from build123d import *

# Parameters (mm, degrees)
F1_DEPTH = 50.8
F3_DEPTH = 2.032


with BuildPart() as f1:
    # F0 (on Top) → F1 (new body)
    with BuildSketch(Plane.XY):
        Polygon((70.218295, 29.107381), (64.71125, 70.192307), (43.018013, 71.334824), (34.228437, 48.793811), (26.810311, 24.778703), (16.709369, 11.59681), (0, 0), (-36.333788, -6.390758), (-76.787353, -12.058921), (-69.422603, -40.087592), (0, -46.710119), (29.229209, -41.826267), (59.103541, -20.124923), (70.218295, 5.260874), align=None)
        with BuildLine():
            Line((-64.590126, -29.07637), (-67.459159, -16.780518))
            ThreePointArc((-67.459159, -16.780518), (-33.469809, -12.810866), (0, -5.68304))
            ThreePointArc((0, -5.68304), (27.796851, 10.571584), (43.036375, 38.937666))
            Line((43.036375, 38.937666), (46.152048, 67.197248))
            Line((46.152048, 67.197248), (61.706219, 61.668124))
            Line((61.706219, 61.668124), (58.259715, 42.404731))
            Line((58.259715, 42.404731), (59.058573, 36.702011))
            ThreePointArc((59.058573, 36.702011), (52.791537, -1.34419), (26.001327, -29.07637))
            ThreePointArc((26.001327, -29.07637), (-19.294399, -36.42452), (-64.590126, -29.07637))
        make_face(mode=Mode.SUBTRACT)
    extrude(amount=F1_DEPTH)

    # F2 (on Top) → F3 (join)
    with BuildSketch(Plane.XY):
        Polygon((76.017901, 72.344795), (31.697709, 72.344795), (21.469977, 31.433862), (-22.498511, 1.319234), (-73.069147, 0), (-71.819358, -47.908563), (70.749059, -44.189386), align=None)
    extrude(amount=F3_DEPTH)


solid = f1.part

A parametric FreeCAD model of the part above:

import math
import FreeCAD as App
import Part
import Sketcher
Q = App.Units.Quantity


def add_polygon(sketch, points):
    """Adds a closed chain of lines whose ends are joined by coincident constraints."""
    first, n = sketch.GeometryCount, len(points)
    for a, b in zip(points, points[1:] + points[:1]):
        sketch.addGeometry(Part.LineSegment(App.Vector(*a, 0), App.Vector(*b, 0)), False)
    for i in range(n):
        sketch.addConstraint(Sketcher.Constraint("Coincident", first + i, 2, first + (i + 1) % n, 1))

doc = App.newDocument("Part")
body = doc.addObject("PartDesign::Body", "Body")

# Sketch on XY plane
sketch1 = body.newObject("Sketcher::SketchObject", "Sketch")
sketch1.AttachmentSupport = (doc.getObject("XY_Plane"), [""])
sketch1.MapMode = "FlatFace"
add_polygon(sketch1, [(70, 29), (65, 70), (43, 71), (34, 49), (27, 25), (17, 12), (0, 0), (-36, -6), (-77, -12), (-69, -40), (0, -47), (29, -42), (59, -20), (70, 5)])  # lines 0-13
sketch1.addGeometry(Part.ArcOfCircle(Part.Circle(App.Vector(-19, 107, 0), App.Vector(0, 0, 1), 143), math.radians(-108), math.radians(-72)), False)  # 14
sketch1.addGeometry(Part.LineSegment(App.Vector(-65, -29, 0), App.Vector(-67, -17, 0)), False)  # 15
sketch1.addGeometry(Part.ArcOfCircle(Part.Circle(App.Vector(-93, 348, 0), App.Vector(0, 0, 1), 366), math.radians(-86.02), math.radians(-75.3)), False)  # 16
sketch1.addGeometry(Part.ArcOfCircle(Part.Circle(App.Vector(-15, 52, 0), App.Vector(0, 0, 1), 59), math.radians(-75), math.radians(-13)), False)  # 17
sketch1.addGeometry(Part.LineSegment(App.Vector(43, 39, 0), App.Vector(46, 67, 0)), False)  # 18
sketch1.addGeometry(Part.LineSegment(App.Vector(46, 67, 0), App.Vector(62, 62, 0)), False)  # 19
sketch1.addGeometry(Part.LineSegment(App.Vector(62, 62, 0), App.Vector(58, 42, 0)), False)  # 20
sketch1.addGeometry(Part.LineSegment(App.Vector(58, 42, 0), App.Vector(59, 37, 0)), False)  # 21
sketch1.addGeometry(Part.ArcOfCircle(Part.Circle(App.Vector(-5, 28, 0), App.Vector(0, 0, 1), 65), math.radians(-61), math.radians(8)), False)  # 22
sketch1.addConstraint(Sketcher.Constraint("Coincident", 14, 1, 15, 1))
sketch1.addConstraint(Sketcher.Constraint("Coincident", 15, 2, 16, 1))
sketch1.addConstraint(Sketcher.Constraint("Coincident", 16, 2, 17, 1))
sketch1.addConstraint(Sketcher.Constraint("Coincident", 17, 2, 18, 1))
sketch1.addConstraint(Sketcher.Constraint("Coincident", 18, 2, 19, 1))
sketch1.addConstraint(Sketcher.Constraint("Coincident", 19, 2, 20, 1))
sketch1.addConstraint(Sketcher.Constraint("Coincident", 20, 2, 21, 1))
sketch1.addConstraint(Sketcher.Constraint("Tangent", 21, 2, 22, 2))
sketch1.addConstraint(Sketcher.Constraint("Coincident", 22, 1, 14, 2))
sketch1.addConstraint(Sketcher.Constraint("Vertical", 13))
sketch1.addConstraint(Sketcher.Constraint("Coincident", 5, 2, -1, 1))
sketch1.addConstraint(Sketcher.Constraint("PointOnObject", 9, 2, -2))
sketch1.addConstraint(Sketcher.Constraint("PointOnObject", 16, 2, -2))
sketch1.addConstraint(Sketcher.Constraint("Horizontal", 14, 1, 22, 1))
sketch1.addConstraint(Sketcher.Constraint("Radius", 17, Q("59.43248 mm")))
sketch1.addConstraint(Sketcher.Constraint("Radius", 22, Q("64.729961 mm")))
sketch1.addConstraint(Sketcher.Constraint("DistanceX", -1, 1, 12, 2, Q("2.7644998 in")))
sketch1.addConstraint(Sketcher.Constraint("Radius", 14, Q("143.280836 mm")))
sketch1.addConstraint(Sketcher.Constraint("Radius", 16, Q("365.876935 mm")))
sketch1.addConstraint(Sketcher.Constraint("DistanceY", 17, 2, 19, 2, Q("0.8948999 in")))
sketch1.addConstraint(Sketcher.Constraint("Distance", 21, Q("5.758402 mm")))
sketch1.addConstraint(Sketcher.Constraint("DistanceX", 14, 3, -1, 1, Q("19.2944 mm")))
sketch1.addConstraint(Sketcher.Constraint("DistanceY", 22, 3, 16, 3, Q("320.491499 mm")))
sketch1.addConstraint(Sketcher.Constraint("DistanceY", 4, 2, 2, 2, Q("37.197001 mm")))
sketch1.addConstraint(Sketcher.Constraint("DistanceX", 6, 2, 3, 2, Q("63.144099 mm")))
sketch1.addConstraint(Sketcher.Constraint("DistanceY", 9, 2, 22, 3, Q("74.4322 mm")))
sketch1.addConstraint(Sketcher.Constraint("DistanceX", 3, 2, 10, 2, Q("2.418898 mm")))
sketch1.addConstraint(Sketcher.Constraint("DistanceY", 19, 2, 1, 2, Q("9.6667 mm")))
sketch1.addConstraint(Sketcher.Constraint("DistanceY", 21, 2, 2, 2, Q("12.0918 mm")))
sketch1.addConstraint(Sketcher.Constraint("Distance", 2, Q("24.194088 mm")))
sketch1.addConstraint(Sketcher.Constraint("Distance", 19, Q("16.507678 mm")))
sketch1.addConstraint(Sketcher.Constraint("Distance", 20, Q("19.569279 mm")))
sketch1.addConstraint(Sketcher.Constraint("DistanceY", 13, 1, 13, 2, Q("23.846507 mm")))
sketch1.addConstraint(Sketcher.Constraint("DistanceX", 16, 3, -1, 1, Q("92.860719 mm")))
sketch1.addConstraint(Sketcher.Constraint("DistanceY", -1, 1, 16, 3, Q("348.213581 mm")))
sketch1.addConstraint(Sketcher.Constraint("DistanceX", -1, 1, 0, 2, Q("64.71125 mm")))
sketch1.addConstraint(Sketcher.Constraint("DistanceY", -1, 1, 2, 2, Q("48.793811 mm")))
sketch1.addConstraint(Sketcher.Constraint("DistanceX", -1, 1, 3, 2, Q("26.810311 mm")))
sketch1.addConstraint(Sketcher.Constraint("DistanceX", -1, 1, 4, 2, Q("16.709369 mm")))
sketch1.addConstraint(Sketcher.Constraint("DistanceY", 7, 2, -1, 1, Q("12.058921 mm")))
sketch1.addConstraint(Sketcher.Constraint("DistanceX", -1, 1, 11, 2, Q("59.103541 mm")))
sketch1.addConstraint(Sketcher.Constraint("DistanceY", -1, 1, 13, 2, Q("29.107381 mm")))
sketch1.addConstraint(Sketcher.Constraint("DistanceY", 14, 1, -1, 1, Q("29.07637 mm")))
sketch1.addConstraint(Sketcher.Constraint("DistanceX", 15, 2, -1, 1, Q("67.459159 mm")))
sketch1.addConstraint(Sketcher.Constraint("DistanceY", -1, 1, 18, 2, Q("67.197248 mm")))
sketch1.addConstraint(Sketcher.Constraint("DistanceX", -1, 1, 19, 2, Q("61.706219 mm")))
sketch1.addConstraint(Sketcher.Constraint("DistanceY", 17, 3, 14, 3, Q("55.025931 mm")))
sketch1.addConstraint(Sketcher.Constraint("DistanceX", 17, 3, 22, 3, Q("9.935369 mm")))
sketch1.addConstraint(Sketcher.Constraint("DistanceY", 0, 2, 14, 3, Q("36.664009 mm")))
sketch1.addConstraint(Sketcher.Constraint("DistanceX", 22, 3, 2, 2, Q("39.27391 mm")))
sketch1.addConstraint(Sketcher.Constraint("DistanceY", 3, 2, 22, 3, Q("2.943378 mm")))
sketch1.addConstraint(Sketcher.Constraint("DistanceY", 6, 2, 22, 3, Q("34.112839 mm")))
sketch1.addConstraint(Sketcher.Constraint("DistanceX", 7, 2, 22, 3, Q("71.74188 mm")))
sketch1.addConstraint(Sketcher.Constraint("DistanceX", 7, 2, 8, 2, Q("7.36475 mm")))
sketch1.addConstraint(Sketcher.Constraint("DistanceY", 8, 2, 7, 2, Q("28.028671 mm")))
sketch1.addConstraint(Sketcher.Constraint("DistanceY", 9, 2, 10, 2, Q("4.883852 mm")))
sketch1.addConstraint(Sketcher.Constraint("Distance", 11, Q("36.924572 mm")))
pad1 = body.newObject("PartDesign::Pad", "Pad")
pad1.Profile = sketch1
pad1.Length = Q("2 in")

# Sketch on XY plane
sketch2 = body.newObject("Sketcher::SketchObject", "Sketch001")
sketch2.AttachmentSupport = (doc.getObject("XY_Plane"), [""])
sketch2.MapMode = "FlatFace"
add_polygon(sketch2, [(76, 72), (32, 72), (21, 31), (-22, 1), (-73, 0), (-72, -48), (71, -44)])  # lines 0-6
sketch2.addConstraint(Sketcher.Constraint("Horizontal", 0))
sketch2.addConstraint(Sketcher.Constraint("PointOnObject", 3, 2, -1))
sketch2.addConstraint(Sketcher.Constraint("Perpendicular", 3, 4))
sketch2.addConstraint(Sketcher.Constraint("Perpendicular", 4, 5))
sketch2.addConstraint(Sketcher.Constraint("DistanceX", 0, 2, 0, 1, Q("44.320192 mm")))
sketch2.addConstraint(Sketcher.Constraint("DistanceX", -1, 1, 6, 2, Q("76.017901 mm")))
sketch2.addConstraint(Sketcher.Constraint("Distance", 3, Q("50.58784 mm")))
sketch2.addConstraint(Sketcher.Constraint("Distance", 4, Q("47.924862 mm")))
sketch2.addConstraint(Sketcher.Constraint("Distance", 5, Q("142.61692 mm")))
sketch2.addConstraint(Sketcher.Constraint("Distance", 6, Q("116.65323 mm")))
sketch2.addConstraint(Sketcher.Constraint("DistanceX", 2, 2, -1, 1, Q("22.498511 mm")))
sketch2.addConstraint(Sketcher.Constraint("DistanceX", -1, 1, 5, 2, Q("70.749059 mm")))
sketch2.addConstraint(Sketcher.Constraint("DistanceY", 2, 2, 1, 2, Q("30.114628 mm")))
sketch2.addConstraint(Sketcher.Constraint("Distance", 1, Q("42.170024 mm")))
pad2 = body.newObject("PartDesign::Pad", "Pad001")
pad2.Profile = sketch2
pad2.Length = Q("0.08 in")

doc.recompute()
